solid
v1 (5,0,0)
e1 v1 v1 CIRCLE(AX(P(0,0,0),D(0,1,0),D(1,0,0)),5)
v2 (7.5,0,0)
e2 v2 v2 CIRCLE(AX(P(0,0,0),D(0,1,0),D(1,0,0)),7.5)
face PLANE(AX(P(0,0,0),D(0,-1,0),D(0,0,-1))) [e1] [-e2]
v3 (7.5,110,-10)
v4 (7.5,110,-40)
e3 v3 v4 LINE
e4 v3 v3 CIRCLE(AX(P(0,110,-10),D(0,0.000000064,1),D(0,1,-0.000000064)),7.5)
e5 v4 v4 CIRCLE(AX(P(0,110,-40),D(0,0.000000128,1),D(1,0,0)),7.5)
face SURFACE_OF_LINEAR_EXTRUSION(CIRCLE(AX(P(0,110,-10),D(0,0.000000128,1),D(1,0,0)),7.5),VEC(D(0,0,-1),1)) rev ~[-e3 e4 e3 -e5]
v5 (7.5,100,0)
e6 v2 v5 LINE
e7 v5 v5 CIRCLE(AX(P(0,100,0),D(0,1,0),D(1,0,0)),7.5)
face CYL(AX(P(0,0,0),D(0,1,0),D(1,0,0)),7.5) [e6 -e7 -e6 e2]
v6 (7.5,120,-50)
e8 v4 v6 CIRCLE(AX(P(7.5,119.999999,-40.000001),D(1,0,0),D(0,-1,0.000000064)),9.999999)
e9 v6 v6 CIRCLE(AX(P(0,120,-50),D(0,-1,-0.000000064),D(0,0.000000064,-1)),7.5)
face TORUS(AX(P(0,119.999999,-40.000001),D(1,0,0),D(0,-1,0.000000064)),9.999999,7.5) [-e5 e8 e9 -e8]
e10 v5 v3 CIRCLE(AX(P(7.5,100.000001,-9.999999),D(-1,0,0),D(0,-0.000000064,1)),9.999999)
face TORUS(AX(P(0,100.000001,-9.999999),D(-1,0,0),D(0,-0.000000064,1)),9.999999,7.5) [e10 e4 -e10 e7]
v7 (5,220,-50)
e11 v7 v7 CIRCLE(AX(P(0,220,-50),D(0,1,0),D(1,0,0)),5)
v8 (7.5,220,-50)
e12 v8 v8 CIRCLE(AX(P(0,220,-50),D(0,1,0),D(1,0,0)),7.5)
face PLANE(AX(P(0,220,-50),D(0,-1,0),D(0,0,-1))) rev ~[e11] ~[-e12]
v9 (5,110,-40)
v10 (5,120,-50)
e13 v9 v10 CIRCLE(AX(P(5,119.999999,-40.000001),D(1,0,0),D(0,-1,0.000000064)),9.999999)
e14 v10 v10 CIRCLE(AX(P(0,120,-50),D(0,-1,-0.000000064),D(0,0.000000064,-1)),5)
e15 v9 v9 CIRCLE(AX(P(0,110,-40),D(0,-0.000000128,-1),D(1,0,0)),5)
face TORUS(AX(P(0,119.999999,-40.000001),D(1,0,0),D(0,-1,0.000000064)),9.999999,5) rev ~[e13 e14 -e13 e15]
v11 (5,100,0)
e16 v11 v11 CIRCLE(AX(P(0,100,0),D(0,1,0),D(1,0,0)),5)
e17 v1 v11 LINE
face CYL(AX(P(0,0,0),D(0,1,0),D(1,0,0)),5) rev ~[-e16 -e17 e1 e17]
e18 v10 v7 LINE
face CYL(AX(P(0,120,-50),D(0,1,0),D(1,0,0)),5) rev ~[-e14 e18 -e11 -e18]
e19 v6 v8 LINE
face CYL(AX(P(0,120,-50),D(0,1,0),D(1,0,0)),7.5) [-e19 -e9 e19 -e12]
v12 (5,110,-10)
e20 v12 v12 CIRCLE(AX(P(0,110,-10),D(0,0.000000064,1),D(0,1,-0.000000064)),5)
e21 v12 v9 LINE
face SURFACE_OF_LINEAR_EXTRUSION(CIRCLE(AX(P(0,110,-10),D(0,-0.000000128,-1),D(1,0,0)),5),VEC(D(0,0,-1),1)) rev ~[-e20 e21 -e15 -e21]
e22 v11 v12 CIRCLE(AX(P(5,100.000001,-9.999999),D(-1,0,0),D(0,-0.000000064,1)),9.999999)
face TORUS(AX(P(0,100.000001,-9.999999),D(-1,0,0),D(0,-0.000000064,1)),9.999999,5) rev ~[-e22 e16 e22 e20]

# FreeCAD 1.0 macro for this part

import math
import FreeCAD as App
import Part
import Sketcher

V = App.Vector
Q = App.Units.Quantity

doc = App.newDocument("Part")
body = doc.addObject("PartDesign::Body", "Body")

# Sketch on XZ plane
sketch1 = doc.addObject("Sketcher::SketchObject", "Sketch")
body.addObject(sketch1)
sketch1.AttachmentSupport = (doc.XZ_Plane, [""])
sketch1.MapMode = "FlatFace"
sketch1.addGeometry([
    Part.Circle(V(0, 0, 0), V(0, 0, 1), 7.5),
    Part.Circle(V(0, 0, 0), V(0, 0, 1), 5),
], False)
sketch1.addConstraint([
    Sketcher.Constraint("Coincident", 0, 3, -1, 1),
    Sketcher.Constraint("Coincident", 1, 3, -1, 1),
    Sketcher.Constraint("Diameter", 0, Q("15 mm")),
    Sketcher.Constraint("Diameter", 1, Q("10 mm")),
])

# Sketch on YZ plane
sketch2 = doc.addObject("Sketcher::SketchObject", "Sketch001")
body.addObject(sketch2)
sketch2.AttachmentSupport = (doc.YZ_Plane, [""])
sketch2.MapMode = "FlatFace"
sketch2.addGeometry([
    Part.LineSegment(V(0, 0, 0), V(100, 0, 0)),  # 0
    Part.ArcOfCircle(Part.Circle(V(100.000001, -9.999999, 0), V(0, 0, 1), 9.999999), math.radians(-0.000004), math.radians(90.000004)),  # 1
    Part.LineSegment(V(110, -10, 0), V(110, -40, 0)),  # 2
    Part.ArcOfCircle(Part.Circle(V(119.999999, -40.000001, 0), V(0, 0, 1), 9.999999), math.radians(179.999996), math.radians(270.000004)),  # 3
    Part.LineSegment(V(120, -50, 0), V(220, -50, 0)),  # 4
], False)
sketch2.addConstraint([
    Sketcher.Constraint("Tangent", 0, 2, 1, 2),
    Sketcher.Constraint("Tangent", 1, 1, 2, 1),
    Sketcher.Constraint("Tangent", 2, 2, 3, 1),
    Sketcher.Constraint("Tangent", 3, 2, 4, 1),
    Sketcher.Constraint("Horizontal", 0),
    Sketcher.Constraint("Vertical", 2),
    Sketcher.Constraint("Horizontal", 4),
    Sketcher.Constraint("Coincident", 0, 1, -1, 1),
    Sketcher.Constraint("Equal", 1, 3),
    Sketcher.Constraint("Equal", 0, 4),
    Sketcher.Constraint("Radius", 1, Q("9.999999 mm")),
    Sketcher.Constraint("DistanceX", 0, 1, 0, 2, Q("100 mm")),
    Sketcher.Constraint("DistanceY", 2, 2, 2, 1, Q("30 mm")),
])
doc.recompute()

additivepipe = doc.addObject("PartDesign::AdditivePipe", "AdditivePipe")
body.addObject(additivepipe)
additivepipe.Profile = sketch1
additivepipe.Spine = (sketch2, ["Edge1", "Edge2", "Edge3", "Edge4", "Edge5"])

doc.recompute()
